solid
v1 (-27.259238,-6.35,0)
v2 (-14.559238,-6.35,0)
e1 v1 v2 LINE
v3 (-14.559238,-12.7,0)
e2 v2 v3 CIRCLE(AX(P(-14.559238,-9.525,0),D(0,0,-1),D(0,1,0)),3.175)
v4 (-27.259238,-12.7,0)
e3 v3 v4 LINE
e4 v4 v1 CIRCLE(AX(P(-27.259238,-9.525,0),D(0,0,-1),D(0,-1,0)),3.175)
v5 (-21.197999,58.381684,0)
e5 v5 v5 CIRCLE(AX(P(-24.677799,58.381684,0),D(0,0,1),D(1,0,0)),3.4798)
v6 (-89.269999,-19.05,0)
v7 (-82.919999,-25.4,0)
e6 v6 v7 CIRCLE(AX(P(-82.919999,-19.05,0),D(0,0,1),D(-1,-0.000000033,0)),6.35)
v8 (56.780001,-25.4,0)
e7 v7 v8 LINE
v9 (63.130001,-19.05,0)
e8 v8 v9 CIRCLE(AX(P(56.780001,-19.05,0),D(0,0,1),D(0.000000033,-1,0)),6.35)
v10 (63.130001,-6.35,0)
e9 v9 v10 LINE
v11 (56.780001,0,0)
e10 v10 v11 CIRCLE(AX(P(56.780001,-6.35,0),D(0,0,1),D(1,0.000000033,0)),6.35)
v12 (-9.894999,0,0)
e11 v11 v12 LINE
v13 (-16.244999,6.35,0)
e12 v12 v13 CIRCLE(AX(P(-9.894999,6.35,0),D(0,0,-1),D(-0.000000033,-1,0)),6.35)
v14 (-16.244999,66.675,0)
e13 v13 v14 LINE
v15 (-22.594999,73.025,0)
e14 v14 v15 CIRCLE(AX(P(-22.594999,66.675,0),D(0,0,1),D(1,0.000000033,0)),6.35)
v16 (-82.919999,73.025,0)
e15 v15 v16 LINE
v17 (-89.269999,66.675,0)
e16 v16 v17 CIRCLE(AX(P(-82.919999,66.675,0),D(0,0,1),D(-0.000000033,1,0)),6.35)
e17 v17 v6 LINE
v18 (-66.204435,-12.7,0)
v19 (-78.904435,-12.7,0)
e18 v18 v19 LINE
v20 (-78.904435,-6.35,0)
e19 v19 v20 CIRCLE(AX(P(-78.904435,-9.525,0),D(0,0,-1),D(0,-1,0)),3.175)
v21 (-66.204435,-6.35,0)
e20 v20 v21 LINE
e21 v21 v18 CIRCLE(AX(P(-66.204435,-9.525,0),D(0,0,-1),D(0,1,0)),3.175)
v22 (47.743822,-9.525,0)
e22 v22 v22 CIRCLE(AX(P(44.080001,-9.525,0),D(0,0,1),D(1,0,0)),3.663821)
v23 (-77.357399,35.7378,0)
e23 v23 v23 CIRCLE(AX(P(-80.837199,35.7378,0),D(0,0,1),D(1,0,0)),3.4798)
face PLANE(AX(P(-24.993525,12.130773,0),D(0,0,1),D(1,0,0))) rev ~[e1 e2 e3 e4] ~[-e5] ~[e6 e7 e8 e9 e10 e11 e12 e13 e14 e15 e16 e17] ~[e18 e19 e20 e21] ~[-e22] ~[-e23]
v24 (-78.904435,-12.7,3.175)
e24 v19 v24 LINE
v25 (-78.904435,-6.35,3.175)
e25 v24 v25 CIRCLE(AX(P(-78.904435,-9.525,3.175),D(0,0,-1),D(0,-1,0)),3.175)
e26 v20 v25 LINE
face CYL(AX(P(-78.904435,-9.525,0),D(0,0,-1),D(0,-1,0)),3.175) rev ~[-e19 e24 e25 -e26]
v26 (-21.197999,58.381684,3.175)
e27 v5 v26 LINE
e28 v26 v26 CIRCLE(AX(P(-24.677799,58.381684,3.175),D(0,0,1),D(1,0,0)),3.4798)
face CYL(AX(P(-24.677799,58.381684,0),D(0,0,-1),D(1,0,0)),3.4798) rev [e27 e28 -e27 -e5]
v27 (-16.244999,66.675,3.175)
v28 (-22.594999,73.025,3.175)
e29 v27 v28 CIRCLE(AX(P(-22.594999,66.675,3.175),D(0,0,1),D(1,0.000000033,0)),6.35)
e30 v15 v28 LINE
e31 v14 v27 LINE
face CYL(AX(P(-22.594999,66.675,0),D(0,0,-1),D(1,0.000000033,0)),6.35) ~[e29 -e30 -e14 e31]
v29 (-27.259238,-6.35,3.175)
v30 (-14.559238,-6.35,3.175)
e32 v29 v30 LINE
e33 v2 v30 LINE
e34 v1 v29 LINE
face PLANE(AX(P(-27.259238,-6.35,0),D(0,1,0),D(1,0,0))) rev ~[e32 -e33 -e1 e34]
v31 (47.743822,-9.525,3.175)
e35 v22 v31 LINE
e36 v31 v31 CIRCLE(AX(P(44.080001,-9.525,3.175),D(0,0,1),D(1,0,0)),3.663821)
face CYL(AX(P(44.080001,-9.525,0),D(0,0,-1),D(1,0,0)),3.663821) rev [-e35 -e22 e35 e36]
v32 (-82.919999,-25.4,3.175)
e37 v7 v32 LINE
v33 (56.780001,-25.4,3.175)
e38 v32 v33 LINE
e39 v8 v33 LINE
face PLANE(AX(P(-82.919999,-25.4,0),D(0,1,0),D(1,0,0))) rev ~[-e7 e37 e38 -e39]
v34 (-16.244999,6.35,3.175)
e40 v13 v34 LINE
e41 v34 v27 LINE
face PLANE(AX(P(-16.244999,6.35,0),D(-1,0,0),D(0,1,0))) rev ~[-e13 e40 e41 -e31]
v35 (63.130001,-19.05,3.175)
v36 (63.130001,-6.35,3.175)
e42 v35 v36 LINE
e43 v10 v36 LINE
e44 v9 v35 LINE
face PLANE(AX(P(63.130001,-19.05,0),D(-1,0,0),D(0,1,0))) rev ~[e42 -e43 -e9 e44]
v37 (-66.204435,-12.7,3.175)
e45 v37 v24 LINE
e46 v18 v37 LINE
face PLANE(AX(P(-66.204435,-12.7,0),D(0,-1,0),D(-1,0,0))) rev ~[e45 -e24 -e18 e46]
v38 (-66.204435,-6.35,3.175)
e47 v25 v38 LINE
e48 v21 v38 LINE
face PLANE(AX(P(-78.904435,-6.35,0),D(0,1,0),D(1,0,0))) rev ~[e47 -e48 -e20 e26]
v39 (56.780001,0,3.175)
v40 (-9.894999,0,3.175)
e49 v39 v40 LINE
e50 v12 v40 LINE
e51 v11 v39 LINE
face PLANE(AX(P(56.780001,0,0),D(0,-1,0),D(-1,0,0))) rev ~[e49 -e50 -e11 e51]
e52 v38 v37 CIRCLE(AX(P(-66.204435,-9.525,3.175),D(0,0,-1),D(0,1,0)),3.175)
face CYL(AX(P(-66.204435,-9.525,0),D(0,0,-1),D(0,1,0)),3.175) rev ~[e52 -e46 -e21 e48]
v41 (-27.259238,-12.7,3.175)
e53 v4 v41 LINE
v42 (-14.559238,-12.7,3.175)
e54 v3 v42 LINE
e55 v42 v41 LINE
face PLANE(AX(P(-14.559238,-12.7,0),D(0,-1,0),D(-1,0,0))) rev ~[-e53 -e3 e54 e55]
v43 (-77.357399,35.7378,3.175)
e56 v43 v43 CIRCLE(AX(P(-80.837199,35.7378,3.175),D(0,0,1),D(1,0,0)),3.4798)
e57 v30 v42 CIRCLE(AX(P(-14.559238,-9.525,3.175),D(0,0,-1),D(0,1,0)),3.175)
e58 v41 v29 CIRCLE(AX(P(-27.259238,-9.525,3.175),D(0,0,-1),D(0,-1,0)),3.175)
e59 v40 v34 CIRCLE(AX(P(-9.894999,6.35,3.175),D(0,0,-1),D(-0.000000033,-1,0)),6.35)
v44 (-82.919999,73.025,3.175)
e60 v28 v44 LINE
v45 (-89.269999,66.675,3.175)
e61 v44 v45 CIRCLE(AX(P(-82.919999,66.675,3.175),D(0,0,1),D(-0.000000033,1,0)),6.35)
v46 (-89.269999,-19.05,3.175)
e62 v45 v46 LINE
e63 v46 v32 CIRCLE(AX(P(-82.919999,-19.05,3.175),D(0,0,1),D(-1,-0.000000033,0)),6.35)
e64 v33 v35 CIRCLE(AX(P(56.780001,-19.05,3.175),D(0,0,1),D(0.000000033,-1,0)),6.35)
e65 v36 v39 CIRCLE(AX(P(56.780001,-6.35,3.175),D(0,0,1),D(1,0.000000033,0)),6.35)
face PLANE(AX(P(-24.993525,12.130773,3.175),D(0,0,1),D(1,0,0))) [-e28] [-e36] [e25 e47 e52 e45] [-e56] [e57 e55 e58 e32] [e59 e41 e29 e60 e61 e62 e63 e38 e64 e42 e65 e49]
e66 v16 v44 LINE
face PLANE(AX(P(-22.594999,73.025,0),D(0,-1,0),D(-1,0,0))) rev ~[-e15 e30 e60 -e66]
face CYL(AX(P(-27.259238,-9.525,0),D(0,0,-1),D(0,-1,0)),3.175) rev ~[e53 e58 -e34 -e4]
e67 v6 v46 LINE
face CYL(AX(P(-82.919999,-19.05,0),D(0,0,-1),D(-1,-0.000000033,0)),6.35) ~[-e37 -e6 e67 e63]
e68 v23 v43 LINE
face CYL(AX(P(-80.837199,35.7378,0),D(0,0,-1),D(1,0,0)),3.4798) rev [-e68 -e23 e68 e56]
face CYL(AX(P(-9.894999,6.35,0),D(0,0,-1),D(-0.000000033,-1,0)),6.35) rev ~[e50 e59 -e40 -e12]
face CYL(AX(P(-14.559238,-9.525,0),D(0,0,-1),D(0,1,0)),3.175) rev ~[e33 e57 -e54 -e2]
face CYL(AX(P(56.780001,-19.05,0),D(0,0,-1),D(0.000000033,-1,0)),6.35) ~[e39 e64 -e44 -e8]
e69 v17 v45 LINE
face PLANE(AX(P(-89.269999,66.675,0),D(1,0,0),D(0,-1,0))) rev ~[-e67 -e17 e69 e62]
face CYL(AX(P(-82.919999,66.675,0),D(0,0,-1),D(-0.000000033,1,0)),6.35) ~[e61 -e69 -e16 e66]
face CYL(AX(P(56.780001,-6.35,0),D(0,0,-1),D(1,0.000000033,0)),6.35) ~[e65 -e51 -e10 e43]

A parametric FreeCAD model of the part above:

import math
import FreeCAD as App
import Part
import Sketcher
from FreeCAD import Vector
Q = App.Units.Quantity

doc = App.newDocument("Part")
params = doc.addObject("Spreadsheet::Sheet", "Params")
for row, (alias, value) in enumerate([
    ("sketch1_radius", "0.25 in"),
    ("sketch1_diameter", "0.274 in"),
    ("sketch1_width", "5.5 in"),
    ("sketch1_width2", "0.5 in"),
    ("sketch1_radius2", "0.125 in"),
    ("pad1_length", "0.125 in"),
], start=1):
    params.set(f"A{row}", alias)
    params.set(f"B{row}", "=" + value)
    params.setAlias(f"B{row}", alias)

body = doc.addObject("PartDesign::Body", "Body")

# Sketch on XY plane
sketch1 = body.newObject("Sketcher::SketchObject", "Sketch")
sketch1.AttachmentSupport = (doc.getObject("XY_Plane"), [""])
sketch1.MapMode = "FlatFace"
sketch1.addGeometry(Part.ArcOfCircle(Part.Circle(Vector(-82.9, -19, 0), Vector(0, 0, 1), 6.4), math.radians(-180), math.radians(-90)), False)
sketch1.addGeometry(Part.LineSegment(Vector(-82.9, -25.4, 0), Vector(56.8, -25.4, 0)), False)
sketch1.addGeometry(Part.ArcOfCircle(Part.Circle(Vector(56.8, -19, 0), Vector(0, 0, 1), 6.4), math.radians(-90), math.radians(0)), False)
sketch1.addGeometry(Part.LineSegment(Vector(63.1, -19.1, 0), Vector(63.1, -6.3, 0)), False)
sketch1.addGeometry(Part.ArcOfCircle(Part.Circle(Vector(56.8, -6.4, 0), Vector(0, 0, 1), 6.4), math.radians(0), math.radians(90)), False)
sketch1.addGeometry(Part.LineSegment(Vector(56.8, 0, 0), Vector(-9.9, 0, 0)), False)
sketch1.addGeometry(Part.ArcOfCircle(Part.Circle(Vector(-9.9, 6.4, 0), Vector(0, 0, 1), 6.4), math.radians(-180), math.radians(-90)), False)
sketch1.addGeometry(Part.LineSegment(Vector(-16.2, 6.3, 0), Vector(-16.2, 66.7, 0)), False)
sketch1.addGeometry(Part.ArcOfCircle(Part.Circle(Vector(-22.6, 66.7, 0), Vector(0, 0, 1), 6.4), math.radians(0), math.radians(90)), False)
sketch1.addGeometry(Part.LineSegment(Vector(-22.6, 73, 0), Vector(-82.9, 73, 0)), False)
sketch1.addGeometry(Part.ArcOfCircle(Part.Circle(Vector(-82.9, 66.7, 0), Vector(0, 0, 1), 6.4), math.radians(90), math.radians(180)), False)
sketch1.addGeometry(Part.LineSegment(Vector(-89.3, 66.7, 0), Vector(-89.3, -19.1, 0)), False)
sketch1.addGeometry(Part.ArcOfCircle(Part.Circle(Vector(-66.2, -9.5, 0), Vector(0, 0, 1), 3.2), math.radians(-90), math.radians(90)), False)
sketch1.addGeometry(Part.LineSegment(Vector(-66.2, -12.7, 0), Vector(-78.9, -12.7, 0)), False)
sketch1.addGeometry(Part.ArcOfCircle(Part.Circle(Vector(-78.9, -9.5, 0), Vector(0, 0, 1), 3.2), math.radians(90), math.radians(270)), False)
sketch1.addGeometry(Part.LineSegment(Vector(-78.9, -6.3, 0), Vector(-66.2, -6.3, 0)), False)
sketch1.addGeometry(Part.ArcOfCircle(Part.Circle(Vector(-14.6, -9.5, 0), Vector(0, 0, 1), 3.2), math.radians(-90), math.radians(90)), False)
sketch1.addGeometry(Part.LineSegment(Vector(-14.6, -12.7, 0), Vector(-27.3, -12.7, 0)), False)
sketch1.addGeometry(Part.ArcOfCircle(Part.Circle(Vector(-27.3, -9.5, 0), Vector(0, 0, 1), 3.2), math.radians(90), math.radians(270)), False)
sketch1.addGeometry(Part.LineSegment(Vector(-27.3, -6.3, 0), Vector(-14.6, -6.3, 0)), False)
sketch1.addGeometry(Part.Circle(Vector(44.1, -9.5, 0), Vector(0, 0, 1), 3.7), False)
sketch1.addGeometry(Part.Circle(Vector(-80.8, 35.7, 0), Vector(0, 0, 1), 3.5), False)
sketch1.addGeometry(Part.Circle(Vector(-24.7, 58.4, 0), Vector(0, 0, 1), 3.5), False)
sketch1.addConstraint(Sketcher.Constraint("Tangent", 0, 2, 1, 1))
sketch1.addConstraint(Sketcher.Constraint("Tangent", 1, 2, 2, 1))
sketch1.addConstraint(Sketcher.Constraint("Tangent", 2, 2, 3, 1))
sketch1.addConstraint(Sketcher.Constraint("Tangent", 3, 2, 4, 1))
sketch1.addConstraint(Sketcher.Constraint("Tangent", 4, 2, 5, 1))
sketch1.addConstraint(Sketcher.Constraint("Tangent", 5, 2, 6, 2))
sketch1.addConstraint(Sketcher.Constraint("Tangent", 6, 1, 7, 1))
sketch1.addConstraint(Sketcher.Constraint("Tangent", 7, 2, 8, 1))
sketch1.addConstraint(Sketcher.Constraint("Tangent", 8, 2, 9, 1))
sketch1.addConstraint(Sketcher.Constraint("Tangent", 9, 2, 10, 1))
sketch1.addConstraint(Sketcher.Constraint("Tangent", 10, 2, 11, 1))
sketch1.addConstraint(Sketcher.Constraint("Tangent", 11, 2, 0, 1))
sketch1.addConstraint(Sketcher.Constraint("Tangent", 12, 1, 13, 1))
sketch1.addConstraint(Sketcher.Constraint("Tangent", 13, 2, 14, 2))
sketch1.addConstraint(Sketcher.Constraint("Tangent", 14, 1, 15, 1))
sketch1.addConstraint(Sketcher.Constraint("Tangent", 15, 2, 12, 2))
sketch1.addConstraint(Sketcher.Constraint("Tangent", 16, 1, 17, 1))
sketch1.addConstraint(Sketcher.Constraint("Tangent", 17, 2, 18, 2))
sketch1.addConstraint(Sketcher.Constraint("Tangent", 18, 1, 19, 1))
sketch1.addConstraint(Sketcher.Constraint("Tangent", 19, 2, 16, 2))
sketch1.addConstraint(Sketcher.Constraint("Horizontal", 1))
sketch1.addConstraint(Sketcher.Constraint("Vertical", 3))
sketch1.addConstraint(Sketcher.Constraint("Horizontal", 5))
sketch1.addConstraint(Sketcher.Constraint("Vertical", 7))
sketch1.addConstraint(Sketcher.Constraint("Horizontal", 9))
sketch1.addConstraint(Sketcher.Constraint("Vertical", 11))
sketch1.addConstraint(Sketcher.Constraint("Horizontal", 13))
sketch1.addConstraint(Sketcher.Constraint("Horizontal", 15))
sketch1.addConstraint(Sketcher.Constraint("Horizontal", 17))
sketch1.addConstraint(Sketcher.Constraint("Horizontal", 19))
sketch1.addConstraint(Sketcher.Constraint("Equal", 0, 2))
sketch1.addConstraint(Sketcher.Constraint("Equal", 2, 4))
sketch1.addConstraint(Sketcher.Constraint("Equal", 4, 6))
sketch1.addConstraint(Sketcher.Constraint("Equal", 6, 8))
sketch1.addConstraint(Sketcher.Constraint("Equal", 8, 10))
sketch1.addConstraint(Sketcher.Constraint("Equal", 14, 16))
sketch1.addConstraint(Sketcher.Constraint("Equal", 21, 22))
sketch1.addConstraint(Sketcher.Constraint("PointOnObject", 4, 2, -1))
sketch1.addConstraint(Sketcher.Constraint("Horizontal", 14, 3, 16, 3))
sketch1.addConstraint(Sketcher.Constraint("Horizontal", 18, 3, 20, 3))
sketch1.addConstraint(Sketcher.Constraint("Horizontal", 3, 2, 14, 1))
sketch1.addConstraint(Sketcher.Constraint("Equal", 15, 17))
sketch1.addConstraint(Sketcher.Constraint("Equal", 19, 3))
sketch1.addConstraint(Sketcher.Constraint("Equal", 9, 7))
sketch1.addConstraint(Sketcher.Constraint("Radius", 0, Q("0.25 in")))
sketch1.addConstraint(Sketcher.Constraint("Diameter", 21, Q("0.274 in")))
sketch1.addConstraint(Sketcher.Constraint("DistanceX", 1, 1, 1, 2, Q("5.5 in")))
sketch1.addConstraint(Sketcher.Constraint("DistanceX", 13, 2, 13, 1, Q("0.5 in")))
sketch1.addConstraint(Sketcher.Constraint("Radius", 12, Q("0.125 in")))
sketch1.addConstraint(Sketcher.Constraint("DistanceY", 12, 3, 10, 3, Q("3 in")))
sketch1.addConstraint(Sketcher.Constraint("DistanceX", 20, 3, 4, 3, Q("0.5 in")))
sketch1.addConstraint(Sketcher.Constraint("DistanceY", -1, 1, 21, 3, Q("1.407 in")))
sketch1.addConstraint(Sketcher.Constraint("DistanceX", 10, 3, 21, 3, Q("0.082 in")))
sketch1.addConstraint(Sketcher.Constraint("DistanceX", 22, 3, 8, 3, Q("0.082 in")))
sketch1.addConstraint(Sketcher.Constraint("Diameter", 20, Q("7.327642 mm")))
sketch1.addConstraint(Sketcher.Constraint("DistanceX", 0, 3, -1, 1, Q("82.919999 mm")))
sketch1.addConstraint(Sketcher.Constraint("DistanceX", 18, 3, -1, 1, Q("27.259238 mm")))
sketch1.addConstraint(Sketcher.Constraint("DistanceX", 12, 3, -1, 1, Q("66.204435 mm")))
sketch1.addConstraint(Sketcher.Constraint("DistanceY", -1, 1, 22, 3, Q("58.381684 mm")))
sketch1.setExpression("Constraints[44]", "Params.sketch1_radius")
sketch1.setExpression("Constraints[45]", "Params.sketch1_diameter")
sketch1.setExpression("Constraints[46]", "Params.sketch1_width")
sketch1.setExpression("Constraints[47]", "Params.sketch1_width2")
sketch1.setExpression("Constraints[48]", "Params.sketch1_radius2")
pad1 = body.newObject("PartDesign::Pad", "Pad")
pad1.Profile = sketch1
pad1.setExpression("Length", "Params.pad1_length")

doc.recompute()
